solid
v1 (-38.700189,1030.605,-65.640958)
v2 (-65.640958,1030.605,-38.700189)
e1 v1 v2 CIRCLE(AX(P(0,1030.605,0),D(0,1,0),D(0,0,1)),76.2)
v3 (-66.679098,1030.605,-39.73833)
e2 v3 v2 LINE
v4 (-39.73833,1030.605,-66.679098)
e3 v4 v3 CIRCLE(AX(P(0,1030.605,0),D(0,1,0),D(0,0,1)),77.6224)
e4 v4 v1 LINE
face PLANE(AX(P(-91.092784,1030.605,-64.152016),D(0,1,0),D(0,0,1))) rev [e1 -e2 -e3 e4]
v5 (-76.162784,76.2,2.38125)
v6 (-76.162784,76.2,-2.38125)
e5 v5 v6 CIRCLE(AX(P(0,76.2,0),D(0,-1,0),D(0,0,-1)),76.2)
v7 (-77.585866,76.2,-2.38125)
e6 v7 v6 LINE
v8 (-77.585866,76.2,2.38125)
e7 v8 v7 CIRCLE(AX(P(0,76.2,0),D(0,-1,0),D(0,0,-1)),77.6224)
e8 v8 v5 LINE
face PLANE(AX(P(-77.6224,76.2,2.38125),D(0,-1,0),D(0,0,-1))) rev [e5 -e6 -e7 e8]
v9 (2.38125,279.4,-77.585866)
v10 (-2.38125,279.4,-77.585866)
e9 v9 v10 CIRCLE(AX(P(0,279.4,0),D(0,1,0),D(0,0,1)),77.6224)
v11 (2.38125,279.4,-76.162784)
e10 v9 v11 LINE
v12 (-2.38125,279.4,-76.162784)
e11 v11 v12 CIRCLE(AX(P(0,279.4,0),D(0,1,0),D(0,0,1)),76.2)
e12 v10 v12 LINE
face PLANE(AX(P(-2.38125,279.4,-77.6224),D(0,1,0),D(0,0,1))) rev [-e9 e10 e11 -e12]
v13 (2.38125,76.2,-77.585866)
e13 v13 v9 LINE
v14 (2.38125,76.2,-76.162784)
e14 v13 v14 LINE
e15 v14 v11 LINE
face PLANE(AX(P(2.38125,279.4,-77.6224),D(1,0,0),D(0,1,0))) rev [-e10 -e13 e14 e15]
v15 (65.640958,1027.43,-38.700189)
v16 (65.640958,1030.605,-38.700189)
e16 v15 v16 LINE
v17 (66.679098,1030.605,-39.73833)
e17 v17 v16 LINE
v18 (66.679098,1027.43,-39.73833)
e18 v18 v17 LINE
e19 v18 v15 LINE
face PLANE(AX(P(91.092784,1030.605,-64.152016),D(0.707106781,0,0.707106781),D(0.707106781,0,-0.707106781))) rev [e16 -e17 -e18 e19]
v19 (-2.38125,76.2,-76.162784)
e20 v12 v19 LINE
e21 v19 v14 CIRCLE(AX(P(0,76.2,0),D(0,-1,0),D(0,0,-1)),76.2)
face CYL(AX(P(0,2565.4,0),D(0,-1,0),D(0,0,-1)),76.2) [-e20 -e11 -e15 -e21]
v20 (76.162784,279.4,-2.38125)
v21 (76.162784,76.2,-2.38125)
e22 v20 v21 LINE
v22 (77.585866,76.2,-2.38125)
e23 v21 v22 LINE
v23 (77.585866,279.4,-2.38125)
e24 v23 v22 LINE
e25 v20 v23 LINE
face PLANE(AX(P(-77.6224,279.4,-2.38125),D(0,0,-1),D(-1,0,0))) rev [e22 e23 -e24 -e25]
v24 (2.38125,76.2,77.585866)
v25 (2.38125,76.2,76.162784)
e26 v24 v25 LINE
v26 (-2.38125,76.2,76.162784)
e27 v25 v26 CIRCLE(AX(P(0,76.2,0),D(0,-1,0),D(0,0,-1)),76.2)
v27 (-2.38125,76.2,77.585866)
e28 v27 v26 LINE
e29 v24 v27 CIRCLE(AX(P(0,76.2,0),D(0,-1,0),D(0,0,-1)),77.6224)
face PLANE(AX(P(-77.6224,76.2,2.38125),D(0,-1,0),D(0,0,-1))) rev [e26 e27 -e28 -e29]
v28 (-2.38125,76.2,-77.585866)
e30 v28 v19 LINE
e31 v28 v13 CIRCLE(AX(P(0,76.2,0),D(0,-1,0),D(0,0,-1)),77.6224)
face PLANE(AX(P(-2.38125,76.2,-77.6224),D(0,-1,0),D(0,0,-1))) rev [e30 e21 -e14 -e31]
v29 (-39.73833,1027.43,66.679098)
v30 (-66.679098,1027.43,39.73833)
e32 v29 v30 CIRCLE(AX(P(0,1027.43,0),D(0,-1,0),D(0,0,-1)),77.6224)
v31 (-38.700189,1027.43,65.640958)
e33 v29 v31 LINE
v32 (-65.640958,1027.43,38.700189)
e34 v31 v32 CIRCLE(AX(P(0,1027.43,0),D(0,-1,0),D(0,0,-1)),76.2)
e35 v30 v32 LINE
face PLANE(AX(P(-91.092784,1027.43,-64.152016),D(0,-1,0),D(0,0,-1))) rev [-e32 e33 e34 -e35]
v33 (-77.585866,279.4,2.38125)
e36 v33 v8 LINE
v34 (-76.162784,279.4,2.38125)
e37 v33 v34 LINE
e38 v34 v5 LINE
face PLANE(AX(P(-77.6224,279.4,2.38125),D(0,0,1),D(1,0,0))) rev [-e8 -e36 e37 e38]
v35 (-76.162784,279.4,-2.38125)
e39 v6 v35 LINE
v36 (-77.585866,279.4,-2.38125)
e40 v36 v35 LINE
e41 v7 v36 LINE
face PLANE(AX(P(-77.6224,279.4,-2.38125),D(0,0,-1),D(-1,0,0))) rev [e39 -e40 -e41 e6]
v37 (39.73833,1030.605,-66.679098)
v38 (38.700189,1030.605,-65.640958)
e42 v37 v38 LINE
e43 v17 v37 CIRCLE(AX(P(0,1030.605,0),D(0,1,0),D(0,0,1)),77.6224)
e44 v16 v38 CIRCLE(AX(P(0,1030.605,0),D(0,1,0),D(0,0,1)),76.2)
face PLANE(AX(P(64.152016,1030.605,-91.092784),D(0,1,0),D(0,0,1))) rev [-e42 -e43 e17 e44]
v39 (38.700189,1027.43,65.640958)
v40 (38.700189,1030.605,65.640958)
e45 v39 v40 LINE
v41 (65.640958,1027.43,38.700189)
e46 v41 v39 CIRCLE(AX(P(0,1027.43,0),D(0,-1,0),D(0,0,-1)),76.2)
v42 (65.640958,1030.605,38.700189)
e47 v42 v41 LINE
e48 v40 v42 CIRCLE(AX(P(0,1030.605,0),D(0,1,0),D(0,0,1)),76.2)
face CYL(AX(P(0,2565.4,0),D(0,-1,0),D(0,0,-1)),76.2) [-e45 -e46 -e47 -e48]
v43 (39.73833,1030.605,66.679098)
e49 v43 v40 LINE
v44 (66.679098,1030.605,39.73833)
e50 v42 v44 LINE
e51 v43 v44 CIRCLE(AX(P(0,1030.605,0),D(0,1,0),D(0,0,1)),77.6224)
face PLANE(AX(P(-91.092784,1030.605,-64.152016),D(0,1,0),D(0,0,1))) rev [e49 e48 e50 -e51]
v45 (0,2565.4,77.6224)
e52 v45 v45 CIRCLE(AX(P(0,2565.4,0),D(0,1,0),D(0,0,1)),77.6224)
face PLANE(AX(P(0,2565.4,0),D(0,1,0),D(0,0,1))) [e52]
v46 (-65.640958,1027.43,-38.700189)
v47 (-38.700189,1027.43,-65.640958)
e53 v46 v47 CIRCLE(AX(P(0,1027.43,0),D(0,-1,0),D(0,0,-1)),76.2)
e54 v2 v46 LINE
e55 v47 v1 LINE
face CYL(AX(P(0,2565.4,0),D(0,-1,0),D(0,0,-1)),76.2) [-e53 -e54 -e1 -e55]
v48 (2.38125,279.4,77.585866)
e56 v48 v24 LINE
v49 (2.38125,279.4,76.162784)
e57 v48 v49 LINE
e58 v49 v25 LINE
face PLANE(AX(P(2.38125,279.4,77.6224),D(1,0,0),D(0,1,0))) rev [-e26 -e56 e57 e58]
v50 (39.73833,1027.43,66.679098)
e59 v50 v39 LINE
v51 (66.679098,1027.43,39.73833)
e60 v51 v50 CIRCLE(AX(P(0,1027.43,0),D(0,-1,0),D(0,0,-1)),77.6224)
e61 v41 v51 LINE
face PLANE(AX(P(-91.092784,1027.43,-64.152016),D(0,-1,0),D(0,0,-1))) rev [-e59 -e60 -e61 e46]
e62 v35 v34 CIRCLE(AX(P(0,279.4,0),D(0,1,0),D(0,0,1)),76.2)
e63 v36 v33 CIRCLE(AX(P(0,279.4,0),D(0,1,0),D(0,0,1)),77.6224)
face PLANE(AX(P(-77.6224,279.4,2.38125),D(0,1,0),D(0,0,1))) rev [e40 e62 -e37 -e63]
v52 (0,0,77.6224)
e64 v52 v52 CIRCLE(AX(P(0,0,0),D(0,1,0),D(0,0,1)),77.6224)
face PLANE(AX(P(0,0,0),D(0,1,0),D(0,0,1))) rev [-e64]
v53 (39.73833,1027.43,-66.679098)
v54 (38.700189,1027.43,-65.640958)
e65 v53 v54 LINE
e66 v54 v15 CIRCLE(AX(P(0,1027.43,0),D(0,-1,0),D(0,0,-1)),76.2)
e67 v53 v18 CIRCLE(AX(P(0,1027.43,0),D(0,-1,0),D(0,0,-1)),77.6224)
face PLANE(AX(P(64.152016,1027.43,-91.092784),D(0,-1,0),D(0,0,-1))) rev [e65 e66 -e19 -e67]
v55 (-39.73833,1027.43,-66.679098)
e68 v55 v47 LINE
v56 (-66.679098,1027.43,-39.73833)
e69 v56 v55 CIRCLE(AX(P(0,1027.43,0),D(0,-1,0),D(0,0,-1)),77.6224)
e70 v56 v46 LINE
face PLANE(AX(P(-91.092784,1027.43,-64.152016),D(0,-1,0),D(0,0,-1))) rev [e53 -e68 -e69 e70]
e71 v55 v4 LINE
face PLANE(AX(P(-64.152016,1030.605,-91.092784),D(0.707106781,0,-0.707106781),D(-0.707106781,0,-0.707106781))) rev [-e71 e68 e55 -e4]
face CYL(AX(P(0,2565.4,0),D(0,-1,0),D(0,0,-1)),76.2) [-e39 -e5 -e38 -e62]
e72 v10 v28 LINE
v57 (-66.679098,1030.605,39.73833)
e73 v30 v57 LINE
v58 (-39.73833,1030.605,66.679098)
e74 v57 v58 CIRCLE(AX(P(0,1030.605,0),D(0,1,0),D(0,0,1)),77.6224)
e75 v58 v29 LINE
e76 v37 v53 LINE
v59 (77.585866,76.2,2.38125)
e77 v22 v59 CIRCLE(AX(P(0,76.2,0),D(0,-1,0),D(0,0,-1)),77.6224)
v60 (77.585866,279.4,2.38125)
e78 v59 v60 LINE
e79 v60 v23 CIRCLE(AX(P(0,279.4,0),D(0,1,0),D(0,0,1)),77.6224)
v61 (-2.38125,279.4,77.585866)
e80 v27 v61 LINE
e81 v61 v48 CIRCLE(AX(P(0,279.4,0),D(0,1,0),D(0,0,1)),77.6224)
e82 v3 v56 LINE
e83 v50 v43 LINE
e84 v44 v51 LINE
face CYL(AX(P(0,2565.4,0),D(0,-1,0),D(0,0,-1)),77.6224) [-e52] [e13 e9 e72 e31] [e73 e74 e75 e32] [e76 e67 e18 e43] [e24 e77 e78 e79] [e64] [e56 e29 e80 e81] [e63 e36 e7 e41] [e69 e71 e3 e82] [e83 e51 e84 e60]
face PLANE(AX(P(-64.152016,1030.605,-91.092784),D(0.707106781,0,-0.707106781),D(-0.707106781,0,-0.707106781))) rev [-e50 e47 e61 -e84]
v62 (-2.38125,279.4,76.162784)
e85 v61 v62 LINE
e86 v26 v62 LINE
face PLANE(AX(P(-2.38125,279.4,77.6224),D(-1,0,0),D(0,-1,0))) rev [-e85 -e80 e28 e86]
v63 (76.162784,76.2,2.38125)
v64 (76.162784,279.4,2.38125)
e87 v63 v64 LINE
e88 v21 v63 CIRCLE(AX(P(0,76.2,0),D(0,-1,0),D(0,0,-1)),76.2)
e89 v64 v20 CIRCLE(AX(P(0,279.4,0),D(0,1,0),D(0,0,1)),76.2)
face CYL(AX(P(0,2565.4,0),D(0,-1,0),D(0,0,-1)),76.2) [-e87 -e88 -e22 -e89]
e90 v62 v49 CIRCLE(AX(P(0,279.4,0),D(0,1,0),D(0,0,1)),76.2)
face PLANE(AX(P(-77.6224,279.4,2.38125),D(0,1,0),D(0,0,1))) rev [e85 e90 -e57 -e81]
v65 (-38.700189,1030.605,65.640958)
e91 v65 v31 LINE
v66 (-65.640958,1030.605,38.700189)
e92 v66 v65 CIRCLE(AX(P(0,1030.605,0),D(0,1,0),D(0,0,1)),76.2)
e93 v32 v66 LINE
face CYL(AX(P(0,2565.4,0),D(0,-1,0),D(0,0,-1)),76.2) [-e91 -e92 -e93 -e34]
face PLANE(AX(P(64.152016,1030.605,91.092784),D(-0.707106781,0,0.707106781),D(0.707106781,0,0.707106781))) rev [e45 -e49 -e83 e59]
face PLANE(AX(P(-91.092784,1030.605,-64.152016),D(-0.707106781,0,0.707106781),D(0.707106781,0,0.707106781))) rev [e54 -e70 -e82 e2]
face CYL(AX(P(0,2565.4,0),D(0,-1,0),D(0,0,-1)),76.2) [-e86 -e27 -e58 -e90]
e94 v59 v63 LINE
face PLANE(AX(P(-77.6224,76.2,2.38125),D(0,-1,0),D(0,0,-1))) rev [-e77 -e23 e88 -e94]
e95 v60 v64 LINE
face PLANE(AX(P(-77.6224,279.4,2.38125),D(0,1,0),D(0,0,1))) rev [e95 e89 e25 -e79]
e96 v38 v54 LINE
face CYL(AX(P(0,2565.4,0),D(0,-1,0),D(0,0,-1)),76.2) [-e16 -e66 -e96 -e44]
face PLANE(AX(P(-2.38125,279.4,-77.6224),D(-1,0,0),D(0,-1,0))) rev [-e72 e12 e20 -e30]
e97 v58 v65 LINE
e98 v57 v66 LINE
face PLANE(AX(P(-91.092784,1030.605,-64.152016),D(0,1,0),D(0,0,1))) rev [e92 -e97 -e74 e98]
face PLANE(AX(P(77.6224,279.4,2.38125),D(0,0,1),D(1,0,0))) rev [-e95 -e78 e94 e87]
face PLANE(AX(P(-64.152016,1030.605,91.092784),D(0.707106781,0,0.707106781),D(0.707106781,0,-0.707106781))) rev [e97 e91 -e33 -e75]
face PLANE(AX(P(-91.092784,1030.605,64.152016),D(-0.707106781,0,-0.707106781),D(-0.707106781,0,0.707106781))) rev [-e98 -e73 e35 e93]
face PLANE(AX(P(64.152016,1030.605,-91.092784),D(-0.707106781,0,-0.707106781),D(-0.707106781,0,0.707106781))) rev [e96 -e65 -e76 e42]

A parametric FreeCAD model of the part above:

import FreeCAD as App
import Part
import Sketcher

V = App.Vector
Q = App.Units.Quantity


def add_polygon(sketch, points):
    """Adds a closed chain of lines whose ends are joined by coincident constraints."""
    first, n = sketch.GeometryCount, len(points)
    for a, b in zip(points, points[1:] + points[:1]):
        sketch.addGeometry(Part.LineSegment(App.Vector(*a, 0), App.Vector(*b, 0)), False)
    for i in range(n):
        sketch.addConstraint(Sketcher.Constraint("Coincident", first + i, 2, first + (i + 1) % n, 1))

doc = App.newDocument("Part")
body = doc.addObject("PartDesign::Body", "Body")

sketch1 = body.newObject("Sketcher::SketchObject", "Sketch")
sketch1.AttachmentSupport = (doc.getObject("XZ_Plane"), [""])
sketch1.MapMode = "FlatFace"
sketch1.addGeometry(Part.Circle(V(0, 0, 0), V(0, 0, 1), 78), False)
sketch1.addGeometry(Part.Circle(V(0, 0, 0), V(0, 0, 1), 76), False)
sketch1.addConstraint(Sketcher.Constraint("Coincident", 0, 3, -1, 1))
sketch1.addConstraint(Sketcher.Constraint("Coincident", 1, 3, -1, 1))
sketch1.addConstraint(Sketcher.Constraint("Diameter", 1, Q("6 in")))
sketch1.addConstraint(Sketcher.Constraint("Diameter", 0, Q("6.112 in")))
pad1 = body.newObject("PartDesign::Pad", "Pad")
pad1.Profile = sketch1
pad1.Length = Q("101 in")
pad1.Reversed = True

sketch2 = body.newObject("Sketcher::SketchObject", "Sketch001")
sketch2.AttachmentSupport = (doc.getObject("XY_Plane"), [""])
sketch2.MapMode = "FlatFace"
add_polygon(sketch2, [(-2.4, 279.4), (-2.4, 76.2), (2.4, 76.2), (2.4, 279.4)])
sketch2.addConstraint(Sketcher.Constraint("Vertical", 0))
sketch2.addConstraint(Sketcher.Constraint("Horizontal", 1))
sketch2.addConstraint(Sketcher.Constraint("Vertical", 2))
sketch2.addConstraint(Sketcher.Constraint("Horizontal", 3))
sketch2.addConstraint(Sketcher.Constraint("DistanceY", 0, 2, 0, 1, Q("8 in")))
sketch2.addConstraint(Sketcher.Constraint("DistanceY", -1, 1, 0, 2, Q("3 in")))
sketch2.addConstraint(Sketcher.Constraint("DistanceX", 1, 1, 1, 2, Q("0.1875 in")))
sketch2.addConstraint(Sketcher.Constraint("DistanceX", 0, 2, -1, 1, Q("0.09375 in")))
pocket1 = body.newObject("PartDesign::Pocket", "Pocket")
pocket1.Profile = sketch2
pocket1.Type = "ThroughAll"
doc.recompute()

polarpattern = body.newObject("PartDesign::PolarPattern", "PolarPattern")
polarpattern.Originals = [pocket1]
polarpattern.Axis = (doc.getObject("Y_Axis"), [""])
polarpattern.Angle = 360
polarpattern.Occurrences = 4
body.Tip = polarpattern

sketch3 = body.newObject("Sketcher::SketchObject", "Sketch002")
sketch3.Placement = App.Placement(V(0, 0, 0), App.Rotation(V(0.707106781, 0, 0.707106781), V(0, 0.999999999, 0), V(-0.707106781, 0, 0.707106781), "ZXY"))
add_polygon(sketch3, [(-19, 1030.6), (-19, 1027.4), (19, 1027.4), (19, 1030.6)])
sketch3.addConstraint(Sketcher.Constraint("Vertical", 0))
sketch3.addConstraint(Sketcher.Constraint("Horizontal", 1))
sketch3.addConstraint(Sketcher.Constraint("Vertical", 2))
sketch3.addConstraint(Sketcher.Constraint("Horizontal", 3))
sketch3.addConstraint(Sketcher.Constraint("DistanceX", 1, 1, 1, 2, Q("1.5 in")))
sketch3.addConstraint(Sketcher.Constraint("DistanceY", 0, 2, 0, 1, Q("0.125 in")))
sketch3.addConstraint(Sketcher.Constraint("DistanceX", 0, 2, -1, 1, Q("0.75 in")))
sketch3.addConstraint(Sketcher.Constraint("DistanceY", -1, 1, 0, 2, Q("40.45 in")))
pocket2 = body.newObject("PartDesign::Pocket", "Pocket001")
pocket2.Profile = sketch3
pocket2.Type = "ThroughAll"
doc.recompute()

polarpattern2 = body.newObject("PartDesign::PolarPattern", "PolarPattern001")
polarpattern2.Originals = [pocket2]
polarpattern2.Axis = (doc.getObject("Y_Axis"), [""])
polarpattern2.Angle = 360
polarpattern2.Occurrences = 4
body.Tip = polarpattern2

sketch4 = body.newObject("Sketcher::SketchObject", "Sketch003")
sketch4.AttachmentSupport = (doc.getObject("XZ_Plane"), [""])
sketch4.MapMode = "FlatFace"
sketch4.addGeometry(Part.Circle(V(0, 0, 0), V(0, 0, 1), 76), False)
sketch4.addConstraint(Sketcher.Constraint("Coincident", 0, 3, -1, 1))
sketch4.addConstraint(Sketcher.Constraint("Diameter", 0, Q("6 in")))
pad2 = body.newObject("PartDesign::Pad", "Pad001")
pad2.Profile = sketch4
pad2.Length = Q("101 in")
pad2.Reversed = True

doc.recompute()
